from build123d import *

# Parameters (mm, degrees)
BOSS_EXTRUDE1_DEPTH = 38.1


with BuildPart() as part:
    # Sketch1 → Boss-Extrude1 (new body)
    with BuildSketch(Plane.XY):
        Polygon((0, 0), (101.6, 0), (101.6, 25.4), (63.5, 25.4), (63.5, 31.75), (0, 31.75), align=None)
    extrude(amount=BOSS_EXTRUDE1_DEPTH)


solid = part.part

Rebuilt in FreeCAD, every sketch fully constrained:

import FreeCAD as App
import Part
import Sketcher
from FreeCAD import Vector
Q = App.Units.Quantity

doc = App.newDocument("Part")
params = doc.addObject("Spreadsheet::Sheet", "Params")
for row, (alias, value) in enumerate([
    ("sketch1_width", "4 in"),
    ("sketch1_height", "1 in"),
    ("sketch1_width2", "1.5 in"),
    ("sketch1_height2", "0.25 in"),
    ("pad1_length", "1.5 in"),
], start=1):
    params.set(f"A{row}", alias)
    params.set(f"B{row}", "=" + value)
    params.setAlias(f"B{row}", alias)

body = doc.addObject("PartDesign::Body", "Body")

# Sketch on XY plane
sketch1 = body.newObject("Sketcher::SketchObject", "Sketch")
sketch1.AttachmentSupport = (doc.getObject("XY_Plane"), [""])
sketch1.MapMode = "FlatFace"
sketch1.addGeometry([
    Part.LineSegment(Vector(0, 0, 0), Vector(101.6, 0, 0)),  # 0
    Part.LineSegment(Vector(101.6, 0, 0), Vector(101.6, 25.4, 0)),  # 1
    Part.LineSegment(Vector(101.6, 25.4, 0), Vector(63.5, 25.4, 0)),  # 2
    Part.LineSegment(Vector(63.5, 25.4, 0), Vector(63.5, 31.75, 0)),  # 3
    Part.LineSegment(Vector(63.5, 31.75, 0), Vector(0, 31.75, 0)),  # 4
    Part.LineSegment(Vector(0, 31.75, 0), Vector(0, 0, 0)),  # 5
], False)
sketch1.addConstraint([
    Sketcher.Constraint("Coincident", 0, 2, 1, 1),
    Sketcher.Constraint("Coincident", 1, 2, 2, 1),
    Sketcher.Constraint("Coincident", 2, 2, 3, 1),
    Sketcher.Constraint("Coincident", 3, 2, 4, 1),
    Sketcher.Constraint("Coincident", 4, 2, 5, 1),
    Sketcher.Constraint("Coincident", 5, 2, 0, 1),
    Sketcher.Constraint("Horizontal", 0),
    Sketcher.Constraint("Vertical", 1),
    Sketcher.Constraint("Horizontal", 2),
    Sketcher.Constraint("Vertical", 3),
    Sketcher.Constraint("Horizontal", 4),
    Sketcher.Constraint("Vertical", 5),
    Sketcher.Constraint("Coincident", 5, 2, -1, 1),
    Sketcher.Constraint("DistanceX", 0, 1, 0, 2, Q("4 in")),
    Sketcher.Constraint("DistanceY", 1, 1, 1, 2, Q("1 in")),
    Sketcher.Constraint("DistanceX", 2, 2, 2, 1, Q("1.5 in")),
    Sketcher.Constraint("DistanceY", 3, 1, 3, 2, Q("0.25 in")),
])
sketch1.setExpression("Constraints[13]", "Params.sketch1_width")
sketch1.setExpression("Constraints[14]", "Params.sketch1_height")
sketch1.setExpression("Constraints[15]", "Params.sketch1_width2")
sketch1.setExpression("Constraints[16]", "Params.sketch1_height2")
pad1 = body.newObject("PartDesign::Pad", "Pad")
pad1.Profile = sketch1
pad1.setExpression("Length", "Params.pad1_length")

doc.recompute()
